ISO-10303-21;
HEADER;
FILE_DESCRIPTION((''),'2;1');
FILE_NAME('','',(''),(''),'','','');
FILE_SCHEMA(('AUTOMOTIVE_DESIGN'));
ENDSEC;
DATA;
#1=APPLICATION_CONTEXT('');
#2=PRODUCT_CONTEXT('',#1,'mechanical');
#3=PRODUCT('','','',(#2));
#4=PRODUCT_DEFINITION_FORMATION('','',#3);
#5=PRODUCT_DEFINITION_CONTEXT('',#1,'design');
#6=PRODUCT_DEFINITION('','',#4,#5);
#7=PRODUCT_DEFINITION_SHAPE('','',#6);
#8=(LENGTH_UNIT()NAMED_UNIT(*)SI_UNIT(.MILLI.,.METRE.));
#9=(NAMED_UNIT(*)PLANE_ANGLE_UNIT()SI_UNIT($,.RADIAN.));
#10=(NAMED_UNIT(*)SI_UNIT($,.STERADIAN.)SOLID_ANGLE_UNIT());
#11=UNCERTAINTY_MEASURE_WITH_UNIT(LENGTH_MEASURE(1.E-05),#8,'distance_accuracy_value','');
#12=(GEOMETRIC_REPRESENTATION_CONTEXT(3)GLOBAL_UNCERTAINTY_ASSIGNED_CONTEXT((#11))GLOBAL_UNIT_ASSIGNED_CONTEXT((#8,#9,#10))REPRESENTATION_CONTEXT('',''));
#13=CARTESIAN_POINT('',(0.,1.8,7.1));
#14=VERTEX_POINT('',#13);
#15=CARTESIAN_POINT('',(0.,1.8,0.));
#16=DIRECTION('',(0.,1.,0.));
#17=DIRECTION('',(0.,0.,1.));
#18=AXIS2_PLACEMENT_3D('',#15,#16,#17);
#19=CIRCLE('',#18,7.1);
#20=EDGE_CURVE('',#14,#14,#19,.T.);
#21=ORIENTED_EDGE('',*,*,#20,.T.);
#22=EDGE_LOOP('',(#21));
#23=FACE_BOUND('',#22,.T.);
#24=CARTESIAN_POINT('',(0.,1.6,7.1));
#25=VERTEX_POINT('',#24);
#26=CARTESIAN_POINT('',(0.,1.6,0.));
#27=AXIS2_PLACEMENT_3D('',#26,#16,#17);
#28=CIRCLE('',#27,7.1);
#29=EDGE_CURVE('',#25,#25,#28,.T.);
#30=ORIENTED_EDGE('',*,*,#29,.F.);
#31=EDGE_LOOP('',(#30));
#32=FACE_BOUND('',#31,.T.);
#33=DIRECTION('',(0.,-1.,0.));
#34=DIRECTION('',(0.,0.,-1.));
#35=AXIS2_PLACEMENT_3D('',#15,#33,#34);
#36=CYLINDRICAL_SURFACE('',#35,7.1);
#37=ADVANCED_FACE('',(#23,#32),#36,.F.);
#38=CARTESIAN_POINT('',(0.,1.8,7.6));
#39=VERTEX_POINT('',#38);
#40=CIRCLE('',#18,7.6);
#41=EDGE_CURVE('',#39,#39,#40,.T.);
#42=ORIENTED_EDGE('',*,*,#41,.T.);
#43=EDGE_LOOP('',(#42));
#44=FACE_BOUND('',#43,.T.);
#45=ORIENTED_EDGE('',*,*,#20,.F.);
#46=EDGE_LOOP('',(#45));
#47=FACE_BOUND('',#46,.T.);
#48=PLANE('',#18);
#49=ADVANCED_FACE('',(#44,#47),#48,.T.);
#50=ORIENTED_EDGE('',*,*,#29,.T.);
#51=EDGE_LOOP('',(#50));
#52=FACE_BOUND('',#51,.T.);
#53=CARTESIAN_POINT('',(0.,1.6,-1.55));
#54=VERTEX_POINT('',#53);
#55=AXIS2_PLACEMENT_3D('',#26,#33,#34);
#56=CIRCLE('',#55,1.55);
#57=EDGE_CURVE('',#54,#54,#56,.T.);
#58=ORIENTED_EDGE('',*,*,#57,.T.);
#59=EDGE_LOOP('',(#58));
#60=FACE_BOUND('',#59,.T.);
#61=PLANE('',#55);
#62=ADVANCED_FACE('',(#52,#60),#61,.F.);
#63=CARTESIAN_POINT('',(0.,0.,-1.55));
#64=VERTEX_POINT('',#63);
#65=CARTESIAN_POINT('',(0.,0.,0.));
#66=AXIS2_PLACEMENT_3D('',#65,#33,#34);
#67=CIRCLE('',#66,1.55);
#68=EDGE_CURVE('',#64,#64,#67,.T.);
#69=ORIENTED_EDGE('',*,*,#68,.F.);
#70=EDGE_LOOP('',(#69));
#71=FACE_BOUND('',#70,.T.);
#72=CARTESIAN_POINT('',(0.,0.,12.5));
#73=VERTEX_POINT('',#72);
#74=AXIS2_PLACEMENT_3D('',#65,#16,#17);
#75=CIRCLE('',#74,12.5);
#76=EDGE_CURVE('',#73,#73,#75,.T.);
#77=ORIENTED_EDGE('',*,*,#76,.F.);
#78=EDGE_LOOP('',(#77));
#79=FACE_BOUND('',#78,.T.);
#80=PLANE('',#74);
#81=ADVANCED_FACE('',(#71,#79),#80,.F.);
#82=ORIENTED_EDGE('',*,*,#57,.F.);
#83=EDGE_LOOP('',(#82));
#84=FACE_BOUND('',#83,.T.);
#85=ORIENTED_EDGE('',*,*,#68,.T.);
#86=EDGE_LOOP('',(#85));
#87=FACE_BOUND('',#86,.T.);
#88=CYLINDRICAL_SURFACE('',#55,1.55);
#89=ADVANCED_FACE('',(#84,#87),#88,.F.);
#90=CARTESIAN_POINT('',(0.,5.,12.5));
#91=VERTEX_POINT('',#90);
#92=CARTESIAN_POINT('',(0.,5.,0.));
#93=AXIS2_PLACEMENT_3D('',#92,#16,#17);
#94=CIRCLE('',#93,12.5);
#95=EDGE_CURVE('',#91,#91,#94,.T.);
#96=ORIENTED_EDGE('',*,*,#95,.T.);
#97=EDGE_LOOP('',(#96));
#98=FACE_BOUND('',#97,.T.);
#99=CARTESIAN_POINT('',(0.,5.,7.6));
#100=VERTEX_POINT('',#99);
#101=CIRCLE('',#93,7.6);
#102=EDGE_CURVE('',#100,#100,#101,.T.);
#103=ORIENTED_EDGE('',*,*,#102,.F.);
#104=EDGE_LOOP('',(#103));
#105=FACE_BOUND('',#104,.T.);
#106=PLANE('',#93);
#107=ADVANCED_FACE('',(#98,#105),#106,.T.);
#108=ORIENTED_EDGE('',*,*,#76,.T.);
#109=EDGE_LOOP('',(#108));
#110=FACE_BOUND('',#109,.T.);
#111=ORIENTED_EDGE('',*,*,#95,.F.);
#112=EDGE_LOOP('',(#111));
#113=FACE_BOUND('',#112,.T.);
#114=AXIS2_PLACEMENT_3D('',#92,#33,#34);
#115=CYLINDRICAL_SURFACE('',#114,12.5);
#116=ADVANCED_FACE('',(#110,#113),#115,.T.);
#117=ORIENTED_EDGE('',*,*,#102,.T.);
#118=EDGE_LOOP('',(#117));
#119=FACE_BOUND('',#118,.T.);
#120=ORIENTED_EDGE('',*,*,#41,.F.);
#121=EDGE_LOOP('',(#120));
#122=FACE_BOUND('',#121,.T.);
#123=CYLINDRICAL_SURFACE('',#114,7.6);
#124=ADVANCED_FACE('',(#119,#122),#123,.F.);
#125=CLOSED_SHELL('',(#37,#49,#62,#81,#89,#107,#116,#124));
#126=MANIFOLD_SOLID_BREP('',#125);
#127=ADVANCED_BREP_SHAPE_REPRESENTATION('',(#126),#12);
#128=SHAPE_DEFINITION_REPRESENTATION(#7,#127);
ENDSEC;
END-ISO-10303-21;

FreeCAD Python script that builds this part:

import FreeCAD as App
import Part
import Sketcher

doc = App.newDocument("Part")
body = doc.addObject("PartDesign::Body", "Body")

sketch1 = body.newObject("Sketcher::SketchObject", "Sketch")
sketch1.AttachmentSupport = (doc.getObject("XZ_Plane"), [""])
sketch1.MapMode = "FlatFace"
sketch1.addGeometry([
    Part.Circle(App.Vector(0, 0, 0), App.Vector(0, 0, 1), 12),
    Part.Circle(App.Vector(0, 0, 0), App.Vector(0, 0, 1), 8),
], False)
sketch1.addConstraint([
    Sketcher.Constraint("Coincident", 0, 3, -1, 1),
    Sketcher.Constraint("Coincident", 1, 3, -1, 1),
    Sketcher.Constraint("Diameter", 0, 25.0),
    Sketcher.Constraint("Diameter", 1, 15.2),
])
pad1 = body.newObject("PartDesign::Pad", "Pad")
pad1.Profile = sketch1
pad1.Length = 5
pad1.Reversed = True

sketch2 = body.newObject("Sketcher::SketchObject", "Sketch001")
sketch2.AttachmentSupport = (doc.getObject("XZ_Plane"), [""])
sketch2.MapMode = "FlatFace"
sketch2.addGeometry([
    Part.Circle(App.Vector(0, 0, 0), App.Vector(0, 0, 1), 7.6),
    Part.Circle(App.Vector(0, 0, 0), App.Vector(0, 0, 1), 1.6),
], False)
sketch2.addConstraint([
    Sketcher.Constraint("Coincident", 0, 3, -1, 1),
    Sketcher.Constraint("Coincident", 1, 3, -1, 1),
    Sketcher.Constraint("Diameter", 0, 15.2),
    Sketcher.Constraint("Diameter", 1, 3.1),
])
pad2 = body.newObject("PartDesign::Pad", "Pad001")
pad2.Profile = sketch2
pad2.Length = 1.6
pad2.Reversed = True

sketch3 = body.newObject("Sketcher::SketchObject", "Sketch002")
sketch3.AttachmentSupport = (doc.getObject("XZ_Plane"), [""])
sketch3.MapMode = "FlatFace"
sketch3.AttachmentOffset = App.Placement(App.Vector(0, 0, -1.6), App.Rotation())
sketch3.addGeometry([
    Part.Circle(App.Vector(0, 0, 0), App.Vector(0, 0, 1), 8),
    Part.Circle(App.Vector(0, 0, 0), App.Vector(0, 0, 1), 7),
], False)
sketch3.addConstraint([
    Sketcher.Constraint("Coincident", 0, 3, -1, 1),
    Sketcher.Constraint("Coincident", 1, 3, -1, 1),
    Sketcher.Constraint("Diameter", 0, 15.2),
    Sketcher.Constraint("Diameter", 1, 14.2),
])
pad3 = body.newObject("PartDesign::Pad", "Pad002")
pad3.Profile = sketch3
pad3.Length = 0.2
pad3.Reversed = True

doc.recompute()
